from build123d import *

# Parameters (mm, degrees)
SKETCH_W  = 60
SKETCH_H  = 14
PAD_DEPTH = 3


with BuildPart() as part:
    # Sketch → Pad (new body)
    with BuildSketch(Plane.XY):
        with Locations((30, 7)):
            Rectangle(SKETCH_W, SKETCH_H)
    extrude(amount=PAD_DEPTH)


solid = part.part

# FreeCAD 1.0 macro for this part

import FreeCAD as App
import Part
import Sketcher
from FreeCAD import Vector
Q = App.Units.Quantity

doc = App.newDocument("Part")
body = doc.addObject("PartDesign::Body", "Body")

sketch1 = doc.addObject("Sketcher::SketchObject", "Sketch")
body.addObject(sketch1)
sketch1.AttachmentSupport = (doc.XY_Plane, [""])
sketch1.MapMode = "FlatFace"
sketch1.addGeometry([
    Part.LineSegment(Vector(0, 14, 0), Vector(0, 0, 0)),
    Part.LineSegment(Vector(0, 0, 0), Vector(60, 0, 0)),
    Part.LineSegment(Vector(60, 0, 0), Vector(60, 14, 0)),
    Part.LineSegment(Vector(60, 14, 0), Vector(0, 14, 0)),
], False)
sketch1.addConstraint([
    Sketcher.Constraint("Coincident", 0, 2, 1, 1),
    Sketcher.Constraint("Coincident", 1, 2, 2, 1),
    Sketcher.Constraint("Coincident", 2, 2, 3, 1),
    Sketcher.Constraint("Coincident", 3, 2, 0, 1),
    Sketcher.Constraint("Vertical", 0),
    Sketcher.Constraint("Horizontal", 1),
    Sketcher.Constraint("Vertical", 2),
    Sketcher.Constraint("Horizontal", 3),
    Sketcher.Constraint("Coincident", 0, 2, -1, 1),
    Sketcher.Constraint("DistanceX", 1, 1, 1, 2, Q("60 mm")),
    Sketcher.Constraint("DistanceY", 0, 2, 0, 1, Q("14 mm")),
])
pad1 = doc.addObject("PartDesign::Pad", "Pad")
body.addObject(pad1)
pad1.Profile = sketch1
pad1.Length = 3

doc.recompute()
